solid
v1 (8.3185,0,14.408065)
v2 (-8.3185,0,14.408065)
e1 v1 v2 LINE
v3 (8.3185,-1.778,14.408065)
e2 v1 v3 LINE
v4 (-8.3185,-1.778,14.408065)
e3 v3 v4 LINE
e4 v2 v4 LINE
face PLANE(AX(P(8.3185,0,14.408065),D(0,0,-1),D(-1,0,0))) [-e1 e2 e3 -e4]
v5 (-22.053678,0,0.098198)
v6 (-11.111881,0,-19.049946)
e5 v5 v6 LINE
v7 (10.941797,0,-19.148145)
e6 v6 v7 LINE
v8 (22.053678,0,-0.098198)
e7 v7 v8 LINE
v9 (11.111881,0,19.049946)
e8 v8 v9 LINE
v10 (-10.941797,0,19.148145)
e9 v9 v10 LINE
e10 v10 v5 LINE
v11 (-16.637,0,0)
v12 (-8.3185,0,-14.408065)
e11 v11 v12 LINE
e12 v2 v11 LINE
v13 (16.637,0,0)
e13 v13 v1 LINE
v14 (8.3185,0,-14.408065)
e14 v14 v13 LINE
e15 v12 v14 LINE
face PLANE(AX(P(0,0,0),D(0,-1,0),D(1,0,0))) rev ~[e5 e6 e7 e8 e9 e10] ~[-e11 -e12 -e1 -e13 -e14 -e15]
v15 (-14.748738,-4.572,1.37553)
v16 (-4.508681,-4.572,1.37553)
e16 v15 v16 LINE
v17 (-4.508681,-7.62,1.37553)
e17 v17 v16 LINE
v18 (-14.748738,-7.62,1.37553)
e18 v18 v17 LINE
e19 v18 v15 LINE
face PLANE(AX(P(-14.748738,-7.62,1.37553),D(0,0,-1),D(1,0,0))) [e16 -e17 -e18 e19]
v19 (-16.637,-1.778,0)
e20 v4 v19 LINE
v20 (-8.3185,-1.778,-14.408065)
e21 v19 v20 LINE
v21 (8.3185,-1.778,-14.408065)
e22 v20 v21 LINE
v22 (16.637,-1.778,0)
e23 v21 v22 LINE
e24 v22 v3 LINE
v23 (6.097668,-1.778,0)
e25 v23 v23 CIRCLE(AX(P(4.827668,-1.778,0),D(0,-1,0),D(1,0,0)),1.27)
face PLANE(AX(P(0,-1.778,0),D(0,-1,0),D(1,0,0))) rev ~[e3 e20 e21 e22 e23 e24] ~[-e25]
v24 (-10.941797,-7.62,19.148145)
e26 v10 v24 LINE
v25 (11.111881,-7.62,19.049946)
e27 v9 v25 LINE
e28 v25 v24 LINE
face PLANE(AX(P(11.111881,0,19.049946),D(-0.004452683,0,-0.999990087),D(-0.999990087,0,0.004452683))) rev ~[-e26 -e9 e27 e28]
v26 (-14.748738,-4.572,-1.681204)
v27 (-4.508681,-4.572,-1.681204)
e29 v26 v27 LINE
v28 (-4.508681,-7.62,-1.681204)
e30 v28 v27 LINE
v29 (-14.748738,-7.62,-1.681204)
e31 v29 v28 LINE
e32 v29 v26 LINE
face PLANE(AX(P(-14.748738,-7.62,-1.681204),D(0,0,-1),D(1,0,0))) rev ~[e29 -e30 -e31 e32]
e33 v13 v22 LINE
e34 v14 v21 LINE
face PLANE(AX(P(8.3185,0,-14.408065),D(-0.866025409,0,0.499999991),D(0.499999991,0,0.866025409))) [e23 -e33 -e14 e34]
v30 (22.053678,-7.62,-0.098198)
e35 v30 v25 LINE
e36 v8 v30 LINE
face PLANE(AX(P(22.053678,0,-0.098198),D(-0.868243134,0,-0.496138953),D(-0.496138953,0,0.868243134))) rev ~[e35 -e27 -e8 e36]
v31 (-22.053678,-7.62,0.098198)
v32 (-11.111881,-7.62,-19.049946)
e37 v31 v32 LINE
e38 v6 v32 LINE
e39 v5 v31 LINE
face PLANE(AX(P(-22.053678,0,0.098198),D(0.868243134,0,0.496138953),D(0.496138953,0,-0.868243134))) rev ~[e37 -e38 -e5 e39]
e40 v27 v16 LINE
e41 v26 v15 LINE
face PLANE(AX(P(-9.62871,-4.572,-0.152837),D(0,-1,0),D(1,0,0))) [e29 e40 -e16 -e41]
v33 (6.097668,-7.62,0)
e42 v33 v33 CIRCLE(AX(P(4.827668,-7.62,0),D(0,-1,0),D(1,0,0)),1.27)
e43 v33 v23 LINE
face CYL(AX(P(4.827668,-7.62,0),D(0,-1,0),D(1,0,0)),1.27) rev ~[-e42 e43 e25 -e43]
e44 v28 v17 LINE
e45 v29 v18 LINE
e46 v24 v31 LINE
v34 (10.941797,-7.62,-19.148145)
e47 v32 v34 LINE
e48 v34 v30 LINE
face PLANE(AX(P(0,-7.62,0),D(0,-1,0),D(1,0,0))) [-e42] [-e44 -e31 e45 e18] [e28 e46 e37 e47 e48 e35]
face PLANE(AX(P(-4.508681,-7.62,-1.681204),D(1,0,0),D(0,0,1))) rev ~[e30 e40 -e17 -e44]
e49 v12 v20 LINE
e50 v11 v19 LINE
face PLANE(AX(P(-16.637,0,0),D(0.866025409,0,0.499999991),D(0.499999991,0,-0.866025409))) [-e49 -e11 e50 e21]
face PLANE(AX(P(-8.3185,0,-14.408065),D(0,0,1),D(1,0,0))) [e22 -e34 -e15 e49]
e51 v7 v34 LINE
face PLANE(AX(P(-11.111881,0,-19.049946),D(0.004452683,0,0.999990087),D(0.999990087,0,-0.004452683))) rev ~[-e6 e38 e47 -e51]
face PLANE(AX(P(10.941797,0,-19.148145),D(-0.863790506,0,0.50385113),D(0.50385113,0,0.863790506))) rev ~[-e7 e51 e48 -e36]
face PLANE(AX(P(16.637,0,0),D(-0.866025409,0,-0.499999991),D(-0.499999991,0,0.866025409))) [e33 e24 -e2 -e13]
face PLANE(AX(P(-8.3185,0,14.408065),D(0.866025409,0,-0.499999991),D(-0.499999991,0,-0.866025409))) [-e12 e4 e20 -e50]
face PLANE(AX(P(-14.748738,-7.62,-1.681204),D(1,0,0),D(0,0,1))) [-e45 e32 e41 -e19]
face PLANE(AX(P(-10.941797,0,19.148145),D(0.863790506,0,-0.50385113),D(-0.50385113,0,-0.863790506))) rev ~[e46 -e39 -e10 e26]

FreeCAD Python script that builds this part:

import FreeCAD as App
import Part
import Sketcher
Q = App.Units.Quantity

doc = App.newDocument("Part")
params = doc.addObject("Spreadsheet::Sheet", "Params")
for row, (alias, value) in enumerate([
    ("pad1_length", "0.3 in"),
    ("sketch2_diameter", "0.1 in"),
    ("pocket1_length", "1 in"),
    ("pocket2_length", "0.12 in"),
    ("sketch4_width", "0.655 in"),
    ("pocket3_length", "0.07 in"),
], start=1):
    params.set(f"A{row}", alias)
    params.set(f"B{row}", "=" + value)
    params.setAlias(f"B{row}", alias)

body = doc.addObject("PartDesign::Body", "Body")

sketch1 = doc.addObject("Sketcher::SketchObject", "Sketch")
body.addObject(sketch1)
sketch1.AttachmentSupport = (doc.XZ_Plane, [""])
sketch1.MapMode = "FlatFace"
sketch1.addGeometry(Part.LineSegment(App.Vector(-22, 0, 0), App.Vector(-11, -19, 0)), False)
sketch1.addGeometry(Part.LineSegment(App.Vector(-11, -19, 0), App.Vector(11, -19, 0)), False)
sketch1.addGeometry(Part.LineSegment(App.Vector(11, -19, 0), App.Vector(22, 0, 0)), False)
sketch1.addGeometry(Part.LineSegment(App.Vector(22, 0, 0), App.Vector(11, 19, 0)), False)
sketch1.addGeometry(Part.LineSegment(App.Vector(11, 19, 0), App.Vector(-11, 19, 0)), False)
sketch1.addGeometry(Part.LineSegment(App.Vector(-11, 19, 0), App.Vector(-22, 0, 0)), False)
sketch1.addConstraint(Sketcher.Constraint("Coincident", 0, 2, 1, 1))
sketch1.addConstraint(Sketcher.Constraint("Coincident", 1, 2, 2, 1))
sketch1.addConstraint(Sketcher.Constraint("Coincident", 2, 2, 3, 1))
sketch1.addConstraint(Sketcher.Constraint("Coincident", 3, 2, 4, 1))
sketch1.addConstraint(Sketcher.Constraint("Coincident", 4, 2, 5, 1))
sketch1.addConstraint(Sketcher.Constraint("Coincident", 5, 2, 0, 1))
sketch1.addConstraint(Sketcher.Constraint("Symmetric", 0, 2, 3, 2, -1, 1))
sketch1.addConstraint(Sketcher.Constraint("Symmetric", 1, 2, 4, 2, -1, 1))
sketch1.addConstraint(Sketcher.Constraint("Symmetric", 2, 2, 5, 2, -1, 1))
sketch1.addConstraint(Sketcher.Constraint("Equal", 0, 1))
sketch1.addConstraint(Sketcher.Constraint("Equal", 1, 2))
sketch1.addConstraint(Sketcher.Constraint("DistanceY", 1, 2, 0, 2, Q("0.098199 mm")))
sketch1.addConstraint(Sketcher.Constraint("DistanceX", 0, 2, -1, 1, Q("11.111881 mm")))
sketch1.addConstraint(Sketcher.Constraint("DistanceX", -1, 1, 2, 2, Q("22.053678 mm")))
sketch1.addConstraint(Sketcher.Constraint("DistanceX", 1, 2, 2, 2, Q("11.111881 mm")))
pad1 = doc.addObject("PartDesign::Pad", "Pad")
body.addObject(pad1)
pad1.Profile = sketch1
pad1.setExpression("Length", "Params.pad1_length")

sketch2 = doc.addObject("Sketcher::SketchObject", "Sketch001")
body.addObject(sketch2)
sketch2.AttachmentSupport = (doc.XZ_Plane, [""])
sketch2.MapMode = "FlatFace"
sketch2.AttachmentOffset = App.Placement(App.Vector(0, 0, 0.3 * 25.4), App.Rotation())
sketch2.addGeometry(Part.Circle(App.Vector(4.8, 0, 0), App.Vector(0, 0, 1), 1.3), False)
sketch2.addConstraint(Sketcher.Constraint("PointOnObject", 0, 3, -1))
sketch2.addConstraint(Sketcher.Constraint("Diameter", 0, Q("0.1 in")))
sketch2.addConstraint(Sketcher.Constraint("DistanceX", -1, 1, 0, 3, Q("4.827668 mm")))
sketch2.setExpression("Constraints[1]", "Params.sketch2_diameter")
pocket1 = doc.addObject("PartDesign::Pocket", "Pocket")
body.addObject(pocket1)
pocket1.Profile = sketch2
pocket1.setExpression("Length", "Params.pocket1_length")

sketch3 = doc.addObject("Sketcher::SketchObject", "Sketch002")
body.addObject(sketch3)
sketch3.AttachmentSupport = (doc.XZ_Plane, [""])
sketch3.MapMode = "FlatFace"
sketch3.AttachmentOffset = App.Placement(App.Vector(0, 0, 0.3 * 25.4), App.Rotation())
sketch3.addGeometry(Part.LineSegment(App.Vector(-14.7, 1.4, 0), App.Vector(-14.7, -1.7, 0)), False)
sketch3.addGeometry(Part.LineSegment(App.Vector(-14.7, -1.7, 0), App.Vector(-4.5, -1.7, 0)), False)
sketch3.addGeometry(Part.LineSegment(App.Vector(-4.5, -1.7, 0), App.Vector(-4.5, 1.4, 0)), False)
sketch3.addGeometry(Part.LineSegment(App.Vector(-4.5, 1.4, 0), App.Vector(-14.7, 1.4, 0)), False)
sketch3.addConstraint(Sketcher.Constraint("Coincident", 0, 2, 1, 1))
sketch3.addConstraint(Sketcher.Constraint("Coincident", 1, 2, 2, 1))
sketch3.addConstraint(Sketcher.Constraint("Coincident", 2, 2, 3, 1))
sketch3.addConstraint(Sketcher.Constraint("Coincident", 3, 2, 0, 1))
sketch3.addConstraint(Sketcher.Constraint("Vertical", 0))
sketch3.addConstraint(Sketcher.Constraint("Horizontal", 1))
sketch3.addConstraint(Sketcher.Constraint("Vertical", 2))
sketch3.addConstraint(Sketcher.Constraint("Horizontal", 3))
sketch3.addConstraint(Sketcher.Constraint("DistanceX", 1, 1, 1, 2, Q("10.240057 mm")))
sketch3.addConstraint(Sketcher.Constraint("DistanceY", 0, 2, 0, 1, Q("3.056733 mm")))
sketch3.addConstraint(Sketcher.Constraint("DistanceX", 0, 2, -1, 1, Q("14.748738 mm")))
sketch3.addConstraint(Sketcher.Constraint("DistanceY", -1, 1, 2, 2, Q("1.37553 mm")))
pocket2 = doc.addObject("PartDesign::Pocket", "Pocket001")
body.addObject(pocket2)
pocket2.Profile = sketch3
pocket2.setExpression("Length", "Params.pocket2_length")

sketch4 = doc.addObject("Sketcher::SketchObject", "Sketch003")
body.addObject(sketch4)
sketch4.AttachmentSupport = (doc.XZ_Plane, [""])
sketch4.MapMode = "FlatFace"
sketch4.addGeometry(Part.LineSegment(App.Vector(-8, -14, 0), App.Vector(8, -14, 0)), False)
sketch4.addGeometry(Part.LineSegment(App.Vector(8, -14, 0), App.Vector(17, 0, 0)), False)
sketch4.addGeometry(Part.LineSegment(App.Vector(17, 0, 0), App.Vector(8, 14, 0)), False)
sketch4.addGeometry(Part.LineSegment(App.Vector(8, 14, 0), App.Vector(-8, 14, 0)), False)
sketch4.addGeometry(Part.LineSegment(App.Vector(-8, 14, 0), App.Vector(-17, 0, 0)), False)
sketch4.addGeometry(Part.LineSegment(App.Vector(-17, 0, 0), App.Vector(-8, -14, 0)), False)
sketch4.addConstraint(Sketcher.Constraint("Coincident", 0, 2, 1, 1))
sketch4.addConstraint(Sketcher.Constraint("Coincident", 1, 2, 2, 1))
sketch4.addConstraint(Sketcher.Constraint("Coincident", 2, 2, 3, 1))
sketch4.addConstraint(Sketcher.Constraint("Coincident", 3, 2, 4, 1))
sketch4.addConstraint(Sketcher.Constraint("Coincident", 4, 2, 5, 1))
sketch4.addConstraint(Sketcher.Constraint("Coincident", 5, 2, 0, 1))
sketch4.addConstraint(Sketcher.Constraint("Horizontal", 0))
sketch4.addConstraint(Sketcher.Constraint("Horizontal", 3))
sketch4.addConstraint(Sketcher.Constraint("Symmetric", 0, 2, 3, 2, -1, 1))
sketch4.addConstraint(Sketcher.Constraint("Symmetric", 1, 2, 4, 2, -1, 1))
sketch4.addConstraint(Sketcher.Constraint("PointOnObject", 1, 2, -1))
sketch4.addConstraint(Sketcher.Constraint("Parallel", 2, 5))
sketch4.addConstraint(Sketcher.Constraint("Vertical", 0, 2, 2, 2))
sketch4.addConstraint(Sketcher.Constraint("Angle", 1, Q("60.000001 deg")))
sketch4.addConstraint(Sketcher.Constraint("DistanceX", 0, 1, 0, 2, Q("0.655 in")))
sketch4.addConstraint(Sketcher.Constraint("DistanceX", 4, 2, 1, 2, Q("1.31 in")))
sketch4.setExpression("Constraints[14]", "Params.sketch4_width")
pocket3 = doc.addObject("PartDesign::Pocket", "Pocket002")
body.addObject(pocket3)
pocket3.Profile = sketch4
pocket3.setExpression("Length", "Params.pocket3_length")
pocket3.Reversed = True

doc.recompute()
